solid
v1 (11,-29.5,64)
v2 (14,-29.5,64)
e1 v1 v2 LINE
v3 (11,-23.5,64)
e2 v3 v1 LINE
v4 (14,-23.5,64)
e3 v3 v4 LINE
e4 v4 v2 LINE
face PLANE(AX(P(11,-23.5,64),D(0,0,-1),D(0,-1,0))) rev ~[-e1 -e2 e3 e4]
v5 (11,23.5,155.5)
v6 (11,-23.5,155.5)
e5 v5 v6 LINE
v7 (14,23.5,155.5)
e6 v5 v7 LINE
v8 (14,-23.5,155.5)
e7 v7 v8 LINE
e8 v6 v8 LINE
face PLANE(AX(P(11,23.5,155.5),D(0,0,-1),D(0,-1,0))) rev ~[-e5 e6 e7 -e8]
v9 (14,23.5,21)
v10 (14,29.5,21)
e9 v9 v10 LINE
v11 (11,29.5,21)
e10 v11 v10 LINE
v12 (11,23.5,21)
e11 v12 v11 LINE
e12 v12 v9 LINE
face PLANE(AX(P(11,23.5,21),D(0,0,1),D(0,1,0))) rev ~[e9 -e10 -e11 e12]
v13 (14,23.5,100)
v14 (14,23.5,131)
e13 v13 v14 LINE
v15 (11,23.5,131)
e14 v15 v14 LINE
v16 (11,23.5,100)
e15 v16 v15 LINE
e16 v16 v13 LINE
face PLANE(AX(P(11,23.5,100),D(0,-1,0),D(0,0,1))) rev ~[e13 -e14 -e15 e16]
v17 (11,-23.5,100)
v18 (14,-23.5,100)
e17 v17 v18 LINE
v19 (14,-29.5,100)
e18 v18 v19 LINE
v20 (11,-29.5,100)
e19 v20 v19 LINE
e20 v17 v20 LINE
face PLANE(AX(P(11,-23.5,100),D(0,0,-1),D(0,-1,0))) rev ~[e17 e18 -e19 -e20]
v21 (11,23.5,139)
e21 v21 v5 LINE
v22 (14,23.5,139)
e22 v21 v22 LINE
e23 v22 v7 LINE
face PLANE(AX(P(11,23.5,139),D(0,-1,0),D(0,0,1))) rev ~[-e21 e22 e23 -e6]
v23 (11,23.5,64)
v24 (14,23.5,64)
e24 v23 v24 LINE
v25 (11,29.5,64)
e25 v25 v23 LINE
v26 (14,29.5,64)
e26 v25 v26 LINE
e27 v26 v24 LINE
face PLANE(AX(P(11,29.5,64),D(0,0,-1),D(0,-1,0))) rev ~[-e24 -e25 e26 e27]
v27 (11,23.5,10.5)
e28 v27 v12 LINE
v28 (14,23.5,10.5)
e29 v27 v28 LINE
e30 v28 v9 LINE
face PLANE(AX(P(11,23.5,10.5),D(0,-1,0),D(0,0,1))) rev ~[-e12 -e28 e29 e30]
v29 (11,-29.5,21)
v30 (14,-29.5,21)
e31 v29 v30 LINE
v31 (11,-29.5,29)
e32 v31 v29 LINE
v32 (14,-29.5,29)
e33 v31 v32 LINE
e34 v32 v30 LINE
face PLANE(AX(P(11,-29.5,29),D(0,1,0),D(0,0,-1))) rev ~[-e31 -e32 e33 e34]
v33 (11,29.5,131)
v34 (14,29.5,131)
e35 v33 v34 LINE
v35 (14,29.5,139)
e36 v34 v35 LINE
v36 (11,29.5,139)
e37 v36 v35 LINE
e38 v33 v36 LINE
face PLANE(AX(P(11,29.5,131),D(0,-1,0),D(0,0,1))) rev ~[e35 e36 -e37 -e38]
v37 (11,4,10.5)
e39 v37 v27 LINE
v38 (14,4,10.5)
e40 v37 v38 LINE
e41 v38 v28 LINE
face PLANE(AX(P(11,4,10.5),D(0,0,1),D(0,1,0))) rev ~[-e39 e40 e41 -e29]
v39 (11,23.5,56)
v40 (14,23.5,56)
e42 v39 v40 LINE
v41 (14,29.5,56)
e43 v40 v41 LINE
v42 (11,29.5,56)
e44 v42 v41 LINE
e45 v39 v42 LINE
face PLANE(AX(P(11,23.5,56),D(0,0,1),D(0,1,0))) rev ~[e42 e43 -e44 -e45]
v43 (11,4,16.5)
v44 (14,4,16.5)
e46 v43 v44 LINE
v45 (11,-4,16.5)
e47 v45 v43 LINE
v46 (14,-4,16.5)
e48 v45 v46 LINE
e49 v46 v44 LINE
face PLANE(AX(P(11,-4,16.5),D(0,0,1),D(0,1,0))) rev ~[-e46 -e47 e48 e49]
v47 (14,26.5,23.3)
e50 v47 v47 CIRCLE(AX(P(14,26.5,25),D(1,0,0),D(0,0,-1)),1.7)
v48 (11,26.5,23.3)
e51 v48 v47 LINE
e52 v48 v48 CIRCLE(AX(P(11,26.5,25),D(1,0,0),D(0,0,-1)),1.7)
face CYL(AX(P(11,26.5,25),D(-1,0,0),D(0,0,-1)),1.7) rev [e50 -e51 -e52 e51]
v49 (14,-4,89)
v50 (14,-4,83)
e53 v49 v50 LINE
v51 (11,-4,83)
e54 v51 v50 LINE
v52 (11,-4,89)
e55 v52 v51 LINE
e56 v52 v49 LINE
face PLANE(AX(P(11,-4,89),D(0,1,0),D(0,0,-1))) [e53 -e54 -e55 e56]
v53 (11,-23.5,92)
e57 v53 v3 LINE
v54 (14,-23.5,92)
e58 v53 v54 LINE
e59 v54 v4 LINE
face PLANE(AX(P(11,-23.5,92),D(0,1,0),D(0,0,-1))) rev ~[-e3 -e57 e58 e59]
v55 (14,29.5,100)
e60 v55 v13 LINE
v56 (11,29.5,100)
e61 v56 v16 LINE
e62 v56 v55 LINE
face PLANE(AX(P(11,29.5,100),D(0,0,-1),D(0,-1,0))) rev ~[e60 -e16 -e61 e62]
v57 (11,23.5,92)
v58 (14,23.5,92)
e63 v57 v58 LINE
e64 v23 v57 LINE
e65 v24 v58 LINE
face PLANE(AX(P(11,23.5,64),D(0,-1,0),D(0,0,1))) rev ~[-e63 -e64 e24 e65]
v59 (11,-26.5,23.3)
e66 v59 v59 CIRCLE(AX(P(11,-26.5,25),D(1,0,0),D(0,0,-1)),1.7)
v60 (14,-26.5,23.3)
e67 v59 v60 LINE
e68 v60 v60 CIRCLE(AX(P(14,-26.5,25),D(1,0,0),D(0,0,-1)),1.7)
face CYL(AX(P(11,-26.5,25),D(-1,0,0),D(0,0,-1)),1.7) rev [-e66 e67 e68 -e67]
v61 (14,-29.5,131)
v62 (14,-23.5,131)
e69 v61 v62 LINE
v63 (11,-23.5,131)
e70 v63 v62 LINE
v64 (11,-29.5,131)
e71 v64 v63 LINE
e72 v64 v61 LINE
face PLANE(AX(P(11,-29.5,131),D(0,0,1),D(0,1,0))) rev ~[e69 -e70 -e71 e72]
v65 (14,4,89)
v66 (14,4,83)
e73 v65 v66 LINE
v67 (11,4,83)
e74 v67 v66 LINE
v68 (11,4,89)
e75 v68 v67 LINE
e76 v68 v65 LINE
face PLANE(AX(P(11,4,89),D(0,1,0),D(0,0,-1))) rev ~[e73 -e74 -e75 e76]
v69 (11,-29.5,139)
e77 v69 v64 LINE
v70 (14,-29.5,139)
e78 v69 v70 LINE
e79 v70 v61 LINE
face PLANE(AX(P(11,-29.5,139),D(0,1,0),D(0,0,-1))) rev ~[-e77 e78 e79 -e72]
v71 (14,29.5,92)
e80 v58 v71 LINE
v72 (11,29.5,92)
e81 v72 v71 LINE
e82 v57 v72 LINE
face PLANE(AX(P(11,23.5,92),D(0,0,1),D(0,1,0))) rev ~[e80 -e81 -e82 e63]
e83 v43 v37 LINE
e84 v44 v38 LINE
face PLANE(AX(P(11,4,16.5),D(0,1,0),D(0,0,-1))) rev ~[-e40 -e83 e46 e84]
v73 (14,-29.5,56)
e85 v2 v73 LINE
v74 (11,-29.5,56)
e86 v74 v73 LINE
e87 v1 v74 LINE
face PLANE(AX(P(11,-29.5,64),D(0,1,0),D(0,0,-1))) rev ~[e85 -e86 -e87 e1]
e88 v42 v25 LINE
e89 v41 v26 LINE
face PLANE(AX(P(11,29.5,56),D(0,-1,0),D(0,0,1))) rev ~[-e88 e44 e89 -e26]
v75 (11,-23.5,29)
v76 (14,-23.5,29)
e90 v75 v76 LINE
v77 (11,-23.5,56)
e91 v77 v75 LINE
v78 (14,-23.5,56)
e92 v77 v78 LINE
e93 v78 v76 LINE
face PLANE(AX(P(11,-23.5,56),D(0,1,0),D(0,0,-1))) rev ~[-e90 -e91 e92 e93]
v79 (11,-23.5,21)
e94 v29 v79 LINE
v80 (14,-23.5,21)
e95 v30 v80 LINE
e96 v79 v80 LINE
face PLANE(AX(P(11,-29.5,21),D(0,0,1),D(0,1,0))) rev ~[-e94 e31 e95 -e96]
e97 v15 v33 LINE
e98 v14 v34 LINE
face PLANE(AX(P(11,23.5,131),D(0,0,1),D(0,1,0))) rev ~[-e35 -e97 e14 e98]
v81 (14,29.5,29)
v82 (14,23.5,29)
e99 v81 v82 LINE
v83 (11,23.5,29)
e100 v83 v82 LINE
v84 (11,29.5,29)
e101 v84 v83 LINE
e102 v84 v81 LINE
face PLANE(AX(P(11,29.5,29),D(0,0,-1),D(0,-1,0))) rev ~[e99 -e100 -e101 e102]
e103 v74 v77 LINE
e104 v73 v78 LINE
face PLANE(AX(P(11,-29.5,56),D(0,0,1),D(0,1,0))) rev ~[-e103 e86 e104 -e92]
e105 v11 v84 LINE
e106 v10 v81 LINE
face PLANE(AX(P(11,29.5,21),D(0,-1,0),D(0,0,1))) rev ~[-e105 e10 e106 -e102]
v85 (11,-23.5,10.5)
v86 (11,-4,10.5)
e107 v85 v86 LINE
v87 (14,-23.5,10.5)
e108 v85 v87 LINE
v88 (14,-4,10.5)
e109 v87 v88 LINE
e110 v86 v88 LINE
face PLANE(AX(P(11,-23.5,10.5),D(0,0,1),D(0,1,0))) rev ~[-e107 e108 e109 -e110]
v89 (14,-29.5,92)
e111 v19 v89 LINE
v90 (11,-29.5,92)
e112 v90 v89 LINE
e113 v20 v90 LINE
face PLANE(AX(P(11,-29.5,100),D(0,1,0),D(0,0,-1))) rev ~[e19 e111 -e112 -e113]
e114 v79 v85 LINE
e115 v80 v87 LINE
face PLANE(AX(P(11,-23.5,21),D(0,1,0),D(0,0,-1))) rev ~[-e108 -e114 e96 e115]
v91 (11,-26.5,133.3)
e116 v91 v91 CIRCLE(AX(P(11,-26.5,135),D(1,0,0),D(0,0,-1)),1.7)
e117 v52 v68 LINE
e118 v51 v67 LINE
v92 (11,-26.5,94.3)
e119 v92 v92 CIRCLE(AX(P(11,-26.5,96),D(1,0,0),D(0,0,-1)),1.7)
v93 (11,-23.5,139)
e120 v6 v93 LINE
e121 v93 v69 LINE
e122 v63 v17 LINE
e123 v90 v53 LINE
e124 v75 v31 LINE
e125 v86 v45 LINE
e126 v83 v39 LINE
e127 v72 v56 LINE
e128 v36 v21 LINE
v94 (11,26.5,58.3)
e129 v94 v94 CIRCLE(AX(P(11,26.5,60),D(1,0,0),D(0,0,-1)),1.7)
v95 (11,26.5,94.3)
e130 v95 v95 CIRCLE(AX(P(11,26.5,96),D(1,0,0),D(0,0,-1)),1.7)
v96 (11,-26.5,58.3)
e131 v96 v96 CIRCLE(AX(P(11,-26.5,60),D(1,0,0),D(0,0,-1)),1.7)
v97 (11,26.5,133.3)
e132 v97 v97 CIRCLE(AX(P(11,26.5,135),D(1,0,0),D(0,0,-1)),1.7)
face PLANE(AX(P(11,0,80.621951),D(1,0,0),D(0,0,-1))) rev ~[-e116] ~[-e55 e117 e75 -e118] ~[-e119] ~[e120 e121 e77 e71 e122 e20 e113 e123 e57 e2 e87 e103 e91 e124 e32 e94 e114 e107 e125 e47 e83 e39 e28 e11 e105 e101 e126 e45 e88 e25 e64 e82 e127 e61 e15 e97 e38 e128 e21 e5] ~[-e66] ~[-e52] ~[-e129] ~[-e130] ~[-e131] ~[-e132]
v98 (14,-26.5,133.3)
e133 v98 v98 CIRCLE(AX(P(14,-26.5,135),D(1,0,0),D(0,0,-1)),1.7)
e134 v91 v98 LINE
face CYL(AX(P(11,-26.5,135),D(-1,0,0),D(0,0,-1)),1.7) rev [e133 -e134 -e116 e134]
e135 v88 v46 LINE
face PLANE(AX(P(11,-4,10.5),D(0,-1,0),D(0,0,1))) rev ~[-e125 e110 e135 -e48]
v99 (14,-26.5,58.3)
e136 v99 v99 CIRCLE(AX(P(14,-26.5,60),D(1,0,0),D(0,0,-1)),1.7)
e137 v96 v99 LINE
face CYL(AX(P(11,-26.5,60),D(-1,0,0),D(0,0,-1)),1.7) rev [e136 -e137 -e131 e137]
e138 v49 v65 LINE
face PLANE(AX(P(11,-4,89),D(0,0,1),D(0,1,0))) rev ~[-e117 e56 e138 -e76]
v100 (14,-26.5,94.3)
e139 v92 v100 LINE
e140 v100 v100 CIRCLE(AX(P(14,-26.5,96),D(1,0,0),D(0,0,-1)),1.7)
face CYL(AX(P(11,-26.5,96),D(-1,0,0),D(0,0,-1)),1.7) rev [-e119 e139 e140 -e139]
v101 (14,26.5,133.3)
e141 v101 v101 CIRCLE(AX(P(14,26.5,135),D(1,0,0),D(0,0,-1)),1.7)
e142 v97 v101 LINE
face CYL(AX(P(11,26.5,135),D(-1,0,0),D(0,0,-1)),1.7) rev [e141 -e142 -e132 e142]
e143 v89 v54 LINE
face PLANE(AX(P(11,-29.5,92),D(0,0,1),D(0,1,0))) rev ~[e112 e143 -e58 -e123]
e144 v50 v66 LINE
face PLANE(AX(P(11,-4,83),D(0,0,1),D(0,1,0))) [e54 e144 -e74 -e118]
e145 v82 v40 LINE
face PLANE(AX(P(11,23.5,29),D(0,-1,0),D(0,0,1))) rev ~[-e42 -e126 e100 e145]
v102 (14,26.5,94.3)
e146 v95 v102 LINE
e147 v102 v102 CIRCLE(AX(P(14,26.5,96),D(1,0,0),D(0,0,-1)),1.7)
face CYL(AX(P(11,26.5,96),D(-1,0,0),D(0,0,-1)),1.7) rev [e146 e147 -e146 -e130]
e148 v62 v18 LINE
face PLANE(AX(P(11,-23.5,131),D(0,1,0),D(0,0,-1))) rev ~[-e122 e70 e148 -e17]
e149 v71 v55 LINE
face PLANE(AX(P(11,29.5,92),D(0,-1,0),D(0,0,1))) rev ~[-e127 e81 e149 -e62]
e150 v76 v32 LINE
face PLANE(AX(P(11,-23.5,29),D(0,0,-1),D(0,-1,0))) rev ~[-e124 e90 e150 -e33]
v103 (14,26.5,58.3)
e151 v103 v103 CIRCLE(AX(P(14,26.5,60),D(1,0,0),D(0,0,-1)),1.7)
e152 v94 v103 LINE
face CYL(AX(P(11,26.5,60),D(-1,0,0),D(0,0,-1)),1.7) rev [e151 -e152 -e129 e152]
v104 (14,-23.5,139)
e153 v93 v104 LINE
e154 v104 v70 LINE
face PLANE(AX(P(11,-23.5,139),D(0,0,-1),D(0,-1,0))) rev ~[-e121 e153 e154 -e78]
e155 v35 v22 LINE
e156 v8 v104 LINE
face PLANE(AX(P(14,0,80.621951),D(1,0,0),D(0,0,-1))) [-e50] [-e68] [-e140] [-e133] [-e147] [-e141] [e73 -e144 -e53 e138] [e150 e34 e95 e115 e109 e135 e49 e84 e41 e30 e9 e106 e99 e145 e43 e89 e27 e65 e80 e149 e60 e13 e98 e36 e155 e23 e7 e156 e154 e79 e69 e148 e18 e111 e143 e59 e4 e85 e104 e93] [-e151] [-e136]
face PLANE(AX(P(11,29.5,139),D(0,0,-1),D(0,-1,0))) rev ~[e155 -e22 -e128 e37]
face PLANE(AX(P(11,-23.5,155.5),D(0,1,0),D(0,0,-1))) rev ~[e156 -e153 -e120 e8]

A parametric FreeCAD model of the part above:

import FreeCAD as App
import Part
import Sketcher

V = App.Vector


def add_polygon(sketch, points):
    """Adds a closed chain of lines whose ends are joined by coincident constraints."""
    first, n = sketch.GeometryCount, len(points)
    for a, b in zip(points, points[1:] + points[:1]):
        sketch.addGeometry(Part.LineSegment(App.Vector(*a, 0), App.Vector(*b, 0)), False)
    for i in range(n):
        sketch.addConstraint(Sketcher.Constraint("Coincident", first + i, 2, first + (i + 1) % n, 1))

doc = App.newDocument("Part")
params = doc.addObject("Spreadsheet::Sheet", "Params")
for row, (alias, value) in enumerate([
    ("sketch1_diameter", "3.4 mm"),
    ("sketch1_width", "6 mm"),
    ("sketch1_width2", "47 mm"),
    ("sketch1_width3", "8 mm"),
    ("sketch1_height", "27 mm"),
    ("pad1_length", "3 mm"),
], start=1):
    params.set(f"A{row}", alias)
    params.set(f"B{row}", "=" + value)
    params.setAlias(f"B{row}", alias)

body = doc.addObject("PartDesign::Body", "Body")

# Sketch on YZ plane
sketch1 = body.newObject("Sketcher::SketchObject", "Sketch")
sketch1.AttachmentSupport = (doc.getObject("YZ_Plane"), [""])
sketch1.MapMode = "FlatFace"
sketch1.AttachmentOffset = App.Placement(V(0, 0, 11), App.Rotation())
add_polygon(sketch1, [(23.5, 10.5), (23.5, 21), (29.5, 21), (29.5, 29), (23.5, 29), (23.5, 56), (29.5, 56), (29.5, 64), (23.5, 64), (23.5, 92), (29.5, 92), (29.5, 100), (23.5, 100), (23.5, 131), (29.5, 131), (29.5, 139), (23.5, 139), (23.5, 155.5), (-23.5, 155.5), (-23.5, 139), (-29.5, 139), (-29.5, 131), (-23.5, 131), (-23.5, 100), (-29.5, 100), (-29.5, 92), (-23.5, 92), (-23.5, 64), (-29.5, 64), (-29.5, 56), (-23.5, 56), (-23.5, 29), (-29.5, 29), (-29.5, 21), (-23.5, 21), (-23.5, 10.5), (-4, 10.5), (-4, 16.5), (4, 16.5), (4, 10.5)])  # lines 0-39
sketch1.addGeometry(Part.Circle(V(-26.5, 135, 0), V(0, 0, 1), 1.7), False)  # 40
sketch1.addGeometry(Part.Circle(V(-26.5, 96, 0), V(0, 0, 1), 1.7), False)  # 41
sketch1.addGeometry(Part.Circle(V(-26.5, 60, 0), V(0, 0, 1), 1.7), False)  # 42
sketch1.addGeometry(Part.Circle(V(-26.5, 25, 0), V(0, 0, 1), 1.7), False)  # 43
add_polygon(sketch1, [(-4, 83), (-4, 89), (4, 89), (4, 83)])  # lines 44-47
sketch1.addGeometry(Part.Circle(V(26.5, 135, 0), V(0, 0, 1), 1.7), False)  # 48
sketch1.addGeometry(Part.Circle(V(26.5, 96, 0), V(0, 0, 1), 1.7), False)  # 49
sketch1.addGeometry(Part.Circle(V(26.5, 60, 0), V(0, 0, 1), 1.7), False)  # 50
sketch1.addGeometry(Part.Circle(V(26.5, 25, 0), V(0, 0, 1), 1.7), False)  # 51
sketch1.addConstraint([
    Sketcher.Constraint("Vertical", 0),
    Sketcher.Constraint("Horizontal", 1),
    Sketcher.Constraint("Vertical", 2),
    Sketcher.Constraint("Horizontal", 3),
    Sketcher.Constraint("Vertical", 4),
    Sketcher.Constraint("Horizontal", 5),
    Sketcher.Constraint("Vertical", 6),
    Sketcher.Constraint("Horizontal", 7),
    Sketcher.Constraint("Vertical", 8),
    Sketcher.Constraint("Horizontal", 9),
    Sketcher.Constraint("Vertical", 10),
    Sketcher.Constraint("Horizontal", 11),
    Sketcher.Constraint("Vertical", 12),
    Sketcher.Constraint("Horizontal", 13),
    Sketcher.Constraint("Vertical", 14),
    Sketcher.Constraint("Horizontal", 15),
    Sketcher.Constraint("Vertical", 16),
    Sketcher.Constraint("Horizontal", 17),
    Sketcher.Constraint("Vertical", 18),
    Sketcher.Constraint("Horizontal", 19),
    Sketcher.Constraint("Vertical", 20),
    Sketcher.Constraint("Horizontal", 21),
    Sketcher.Constraint("Vertical", 22),
    Sketcher.Constraint("Horizontal", 23),
    Sketcher.Constraint("Vertical", 24),
    Sketcher.Constraint("Horizontal", 25),
    Sketcher.Constraint("Vertical", 26),
    Sketcher.Constraint("Horizontal", 27),
    Sketcher.Constraint("Vertical", 28),
    Sketcher.Constraint("Horizontal", 29),
    Sketcher.Constraint("Vertical", 30),
    Sketcher.Constraint("Horizontal", 31),
    Sketcher.Constraint("Vertical", 32),
    Sketcher.Constraint("Horizontal", 33),
    Sketcher.Constraint("Vertical", 34),
    Sketcher.Constraint("Horizontal", 35),
    Sketcher.Constraint("Vertical", 36),
    Sketcher.Constraint("Horizontal", 37),
    Sketcher.Constraint("Vertical", 38),
    Sketcher.Constraint("Horizontal", 39),
    Sketcher.Constraint("Vertical", 44),
    Sketcher.Constraint("Horizontal", 45),
    Sketcher.Constraint("Vertical", 46),
    Sketcher.Constraint("Horizontal", 47),
    Sketcher.Constraint("Equal", 40, 41),
    Sketcher.Constraint("Equal", 41, 42),
    Sketcher.Constraint("Equal", 42, 43),
    Sketcher.Constraint("Equal", 43, 48),
    Sketcher.Constraint("Equal", 48, 49),
    Sketcher.Constraint("Equal", 49, 50),
    Sketcher.Constraint("Equal", 50, 51),
    Sketcher.Constraint("Symmetric", 40, 3, 48, 3, -2),
    Sketcher.Constraint("Symmetric", 41, 3, 49, 3, -2),
    Sketcher.Constraint("Symmetric", 42, 3, 50, 3, -2),
    Sketcher.Constraint("Symmetric", 43, 3, 51, 3, -2),
    Sketcher.Constraint("Symmetric", 15, 2, 18, 2, -2),
    Sketcher.Constraint("Symmetric", 13, 2, 20, 2, -2),
    Sketcher.Constraint("Symmetric", 11, 2, 22, 2, -2),
    Sketcher.Constraint("Symmetric", 9, 2, 24, 2, -2),
    Sketcher.Constraint("Symmetric", 7, 2, 26, 2, -2),
    Sketcher.Constraint("Symmetric", 5, 2, 28, 2, -2),
    Sketcher.Constraint("Symmetric", 3, 2, 30, 2, -2),
    Sketcher.Constraint("Symmetric", 1, 2, 32, 2, -2),
    Sketcher.Constraint("Symmetric", 35, 2, 38, 2, -2),
    Sketcher.Constraint("Vertical", 40, 3, 41, 3),
    Sketcher.Constraint("Vertical", 41, 3, 42, 3),
    Sketcher.Constraint("Vertical", 42, 3, 43, 3),
    Sketcher.Constraint("Vertical", 0, 2, 3, 2),
    Sketcher.Constraint("Vertical", 2, 2, 5, 2),
    Sketcher.Constraint("Vertical", 4, 2, 7, 2),
    Sketcher.Constraint("Vertical", 6, 2, 9, 2),
    Sketcher.Constraint("Vertical", 8, 2, 11, 2),
    Sketcher.Constraint("Vertical", 10, 2, 13, 2),
    Sketcher.Constraint("Vertical", 12, 2, 15, 2),
    Sketcher.Constraint("Vertical", 30, 2, 33, 2),
    Sketcher.Constraint("Vertical", 36, 2, 44, 2),
    Sketcher.Constraint("Vertical", 38, 2, 45, 2),
    Sketcher.Constraint("Equal", 47, 2),
    Sketcher.Constraint("Equal", 2, 6),
    Sketcher.Constraint("Equal", 6, 10),
    Sketcher.Constraint("Equal", 10, 14),
    Sketcher.Constraint("Equal", 33, 36),
    Sketcher.Constraint("Equal", 38, 44),
    Sketcher.Constraint("Diameter", 40, 3.4),
    Sketcher.Constraint("DistanceX", 1, 1, 1, 2, 6.0),
    Sketcher.Constraint("DistanceX", 17, 2, 17, 1, 47.0),
    Sketcher.Constraint("DistanceX", 37, 1, 37, 2, 8.0),
    Sketcher.Constraint("DistanceY", 4, 1, 4, 2, 27.0),
    Sketcher.Constraint("DistanceY", 8, 1, 8, 2, 28.0),
    Sketcher.Constraint("DistanceY", 12, 1, 12, 2, 31.0),
    Sketcher.Constraint("DistanceY", 0, 1, 0, 2, 10.5),
    Sketcher.Constraint("DistanceY", 16, 1, 16, 2, 16.5),
    Sketcher.Constraint("DistanceY", -1, 1, 40, 3, 135.0),
    Sketcher.Constraint("DistanceY", -1, 1, 41, 3, 96.0),
    Sketcher.Constraint("DistanceY", -1, 1, 42, 3, 60.0),
    Sketcher.Constraint("DistanceY", -1, 1, 43, 3, 25.0),
    Sketcher.Constraint("DistanceY", -1, 1, 0, 2, 21.0),
    Sketcher.Constraint("DistanceY", -1, 1, 44, 2, 89.0),
    Sketcher.Constraint("DistanceX", 40, 3, 48, 3, 53.0),
])
sketch1.setExpression("Constraints[127]", "Params.sketch1_diameter")
sketch1.setExpression("Constraints[128]", "Params.sketch1_width")
sketch1.setExpression("Constraints[129]", "Params.sketch1_width2")
sketch1.setExpression("Constraints[130]", "Params.sketch1_width3")
sketch1.setExpression("Constraints[131]", "Params.sketch1_height")
pad1 = body.newObject("PartDesign::Pad", "Pad")
pad1.Profile = sketch1
pad1.setExpression("Length", "Params.pad1_length")

doc.recompute()
